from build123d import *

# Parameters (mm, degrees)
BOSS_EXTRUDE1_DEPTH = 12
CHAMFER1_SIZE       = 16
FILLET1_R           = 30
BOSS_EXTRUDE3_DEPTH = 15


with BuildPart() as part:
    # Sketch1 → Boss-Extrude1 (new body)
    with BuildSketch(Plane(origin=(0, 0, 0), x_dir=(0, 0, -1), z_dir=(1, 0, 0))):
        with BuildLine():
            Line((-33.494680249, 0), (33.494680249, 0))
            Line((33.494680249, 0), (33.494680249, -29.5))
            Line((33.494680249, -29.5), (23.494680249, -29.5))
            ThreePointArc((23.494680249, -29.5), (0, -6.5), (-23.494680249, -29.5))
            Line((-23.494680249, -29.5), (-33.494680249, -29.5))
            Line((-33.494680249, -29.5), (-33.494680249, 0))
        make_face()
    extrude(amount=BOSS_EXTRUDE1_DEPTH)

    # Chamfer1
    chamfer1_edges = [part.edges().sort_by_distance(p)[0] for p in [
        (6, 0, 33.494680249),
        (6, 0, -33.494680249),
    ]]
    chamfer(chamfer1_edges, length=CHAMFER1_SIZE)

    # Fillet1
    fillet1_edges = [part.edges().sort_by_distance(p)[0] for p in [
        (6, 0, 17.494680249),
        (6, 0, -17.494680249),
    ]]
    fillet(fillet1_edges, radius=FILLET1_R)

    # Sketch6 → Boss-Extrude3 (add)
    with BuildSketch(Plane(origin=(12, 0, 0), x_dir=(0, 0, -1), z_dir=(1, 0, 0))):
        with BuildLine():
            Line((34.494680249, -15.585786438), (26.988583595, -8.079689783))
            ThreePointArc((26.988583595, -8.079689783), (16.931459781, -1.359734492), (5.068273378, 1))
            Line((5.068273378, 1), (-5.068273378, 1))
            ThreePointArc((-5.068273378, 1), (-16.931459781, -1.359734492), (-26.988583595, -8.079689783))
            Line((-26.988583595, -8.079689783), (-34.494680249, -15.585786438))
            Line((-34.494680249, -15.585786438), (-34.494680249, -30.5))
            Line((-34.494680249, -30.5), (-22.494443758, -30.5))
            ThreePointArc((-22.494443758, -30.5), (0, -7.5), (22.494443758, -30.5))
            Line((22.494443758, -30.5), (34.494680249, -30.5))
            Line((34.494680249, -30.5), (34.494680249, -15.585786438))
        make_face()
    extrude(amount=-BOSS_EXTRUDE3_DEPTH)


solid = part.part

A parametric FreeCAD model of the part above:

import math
import FreeCAD as App
import Part
import Sketcher


def edges_at(feature, points):
    """Names of the edges that pass closest to the given points."""
    edges = feature.Shape.Edges
    near = lambda p: min(range(len(edges)), key=lambda i: edges[i].distToShape(Part.Vertex(*p))[0])
    return sorted({f"Edge{near(p) + 1}" for p in points})

doc = App.newDocument("Part")
body = doc.addObject("PartDesign::Body", "Body")

# Sketch on YZ plane
sketch1 = doc.addObject("Sketcher::SketchObject", "Sketch")
body.addObject(sketch1)
sketch1.AttachmentSupport = (doc.YZ_Plane, [""])
sketch1.MapMode = "FlatFace"
sketch1.addGeometry([
    Part.LineSegment(App.Vector(0, -33.49468, 0), App.Vector(0, 33.49468, 0)),  # 0
    Part.LineSegment(App.Vector(0, 33.49468, 0), App.Vector(-29.5, 33.49468, 0)),  # 1
    Part.LineSegment(App.Vector(-29.5, 33.49468, 0), App.Vector(-29.5, 23.49468, 0)),  # 2
    Part.ArcOfCircle(Part.Circle(App.Vector(-30, 0, 0), App.Vector(0, 0, 1), 23.5), math.radians(-88.780849), math.radians(88.780849)),  # 3
    Part.LineSegment(App.Vector(-29.5, -23.49468, 0), App.Vector(-29.5, -33.49468, 0)),  # 4
    Part.LineSegment(App.Vector(-29.5, -33.49468, 0), App.Vector(0, -33.49468, 0)),  # 5
], False)
sketch1.addConstraint([
    Sketcher.Constraint("Coincident", 0, 2, 1, 1),
    Sketcher.Constraint("Coincident", 1, 2, 2, 1),
    Sketcher.Constraint("Coincident", 2, 2, 3, 2),
    Sketcher.Constraint("Coincident", 3, 1, 4, 1),
    Sketcher.Constraint("Coincident", 4, 2, 5, 1),
    Sketcher.Constraint("Coincident", 5, 2, 0, 1),
    Sketcher.Constraint("Vertical", 0),
    Sketcher.Constraint("Horizontal", 1),
    Sketcher.Constraint("Vertical", 2),
    Sketcher.Constraint("Vertical", 4),
    Sketcher.Constraint("Horizontal", 5),
    Sketcher.Constraint("Symmetric", 0, 2, 5, 2, -1, 1),
    Sketcher.Constraint("Symmetric", 2, 2, 3, 1, -1),
    Sketcher.Constraint("Radius", 3, 23.5),
    Sketcher.Constraint("DistanceY", 2, 2, 2, 1, 10.0),
    Sketcher.Constraint("DistanceX", 1, 2, 1, 1, 29.5),
    Sketcher.Constraint("DistanceX", 3, 3, -1, 1, 30.0),
])
pad1 = doc.addObject("PartDesign::Pad", "Pad")
body.addObject(pad1)
pad1.Profile = sketch1
pad1.Length = 12
doc.recompute()

chamfer = doc.addObject("PartDesign::Chamfer", "Chamfer")
body.addObject(chamfer)
chamfer.Base = (pad1, edges_at(pad1, [(6, 0, 33.495), (6, 0, -33.495)]))
chamfer.Size = 16
doc.recompute()

fillet = doc.addObject("PartDesign::Fillet", "Fillet")
body.addObject(fillet)
fillet.Base = (chamfer, edges_at(chamfer, [(6, 0, 17.495), (6, 0, -17.495)]))
fillet.Radius = 30

# Sketch on YZ plane
sketch2 = doc.addObject("Sketcher::SketchObject", "Sketch001")
body.addObject(sketch2)
sketch2.AttachmentSupport = (doc.YZ_Plane, [""])
sketch2.MapMode = "FlatFace"
sketch2.AttachmentOffset = App.Placement(App.Vector(0, 0, 12), App.Rotation())
sketch2.addGeometry([
    Part.LineSegment(App.Vector(-15.585786, -34.49468, 0), App.Vector(-8.07969, -26.988584, 0)),  # 0
    Part.ArcOfCircle(Part.Circle(App.Vector(-30, -5.068273, 0), App.Vector(0, 0, 1), 31), math.radians(-45), math.radians(0)),  # 1
    Part.LineSegment(App.Vector(1, -5.068273, 0), App.Vector(1, 5.068273, 0)),  # 2
    Part.ArcOfCircle(Part.Circle(App.Vector(-30, 5.068273, 0), App.Vector(0, 0, 1), 31), math.radians(0), math.radians(45)),  # 3
    Part.LineSegment(App.Vector(-8.07969, 26.988584, 0), App.Vector(-15.585786, 34.49468, 0)),  # 4
    Part.LineSegment(App.Vector(-15.585786, 34.49468, 0), App.Vector(-30.5, 34.49468, 0)),  # 5
    Part.LineSegment(App.Vector(-30.5, 34.49468, 0), App.Vector(-30.5, 22.494444, 0)),  # 6
    Part.ArcOfCircle(Part.Circle(App.Vector(-30, 0, 0), App.Vector(0, 0, 1), 22.5), math.radians(-91.273344), math.radians(91.273344)),  # 7
    Part.LineSegment(App.Vector(-30.5, -22.494444, 0), App.Vector(-30.5, -34.49468, 0)),  # 8
    Part.LineSegment(App.Vector(-30.5, -34.49468, 0), App.Vector(-15.585786, -34.49468, 0)),  # 9
], False)
sketch2.addConstraint([
    Sketcher.Constraint("Tangent", 0, 2, 1, 1),
    Sketcher.Constraint("Tangent", 1, 2, 2, 1),
    Sketcher.Constraint("Tangent", 2, 2, 3, 1),
    Sketcher.Constraint("Tangent", 3, 2, 4, 1),
    Sketcher.Constraint("Coincident", 4, 2, 5, 1),
    Sketcher.Constraint("Coincident", 5, 2, 6, 1),
    Sketcher.Constraint("Coincident", 6, 2, 7, 2),
    Sketcher.Constraint("Coincident", 7, 1, 8, 1),
    Sketcher.Constraint("Coincident", 8, 2, 9, 1),
    Sketcher.Constraint("Coincident", 9, 2, 0, 1),
    Sketcher.Constraint("Vertical", 2),
    Sketcher.Constraint("Horizontal", 5),
    Sketcher.Constraint("Vertical", 6),
    Sketcher.Constraint("Vertical", 8),
    Sketcher.Constraint("Horizontal", 9),
    Sketcher.Constraint("Equal", 1, 3),
    Sketcher.Constraint("Symmetric", 0, 2, 3, 2, -1),
    Sketcher.Constraint("Symmetric", 6, 2, 7, 1, -1),
    Sketcher.Constraint("Perpendicular", 0, 4),
    Sketcher.Constraint("Vertical", 3, 3, 7, 3),
    Sketcher.Constraint("Vertical", 4, 2, 9, 2),
    Sketcher.Constraint("Radius", 1, 31.0),
    Sketcher.Constraint("Radius", 7, 22.5),
    Sketcher.Constraint("DistanceX", 1, 3, -1, 1, 30.0),
    Sketcher.Constraint("DistanceX", 5, 2, -1, 1, 30.5),
    Sketcher.Constraint("DistanceX", 5, 2, 5, 1, 14.914214),
    Sketcher.Constraint("DistanceY", 2, 1, 2, 2, 10.136547),
])
pad2 = doc.addObject("PartDesign::Pad", "Pad001")
body.addObject(pad2)
pad2.Profile = sketch2
pad2.Length = 15
pad2.Reversed = True

doc.recompute()
